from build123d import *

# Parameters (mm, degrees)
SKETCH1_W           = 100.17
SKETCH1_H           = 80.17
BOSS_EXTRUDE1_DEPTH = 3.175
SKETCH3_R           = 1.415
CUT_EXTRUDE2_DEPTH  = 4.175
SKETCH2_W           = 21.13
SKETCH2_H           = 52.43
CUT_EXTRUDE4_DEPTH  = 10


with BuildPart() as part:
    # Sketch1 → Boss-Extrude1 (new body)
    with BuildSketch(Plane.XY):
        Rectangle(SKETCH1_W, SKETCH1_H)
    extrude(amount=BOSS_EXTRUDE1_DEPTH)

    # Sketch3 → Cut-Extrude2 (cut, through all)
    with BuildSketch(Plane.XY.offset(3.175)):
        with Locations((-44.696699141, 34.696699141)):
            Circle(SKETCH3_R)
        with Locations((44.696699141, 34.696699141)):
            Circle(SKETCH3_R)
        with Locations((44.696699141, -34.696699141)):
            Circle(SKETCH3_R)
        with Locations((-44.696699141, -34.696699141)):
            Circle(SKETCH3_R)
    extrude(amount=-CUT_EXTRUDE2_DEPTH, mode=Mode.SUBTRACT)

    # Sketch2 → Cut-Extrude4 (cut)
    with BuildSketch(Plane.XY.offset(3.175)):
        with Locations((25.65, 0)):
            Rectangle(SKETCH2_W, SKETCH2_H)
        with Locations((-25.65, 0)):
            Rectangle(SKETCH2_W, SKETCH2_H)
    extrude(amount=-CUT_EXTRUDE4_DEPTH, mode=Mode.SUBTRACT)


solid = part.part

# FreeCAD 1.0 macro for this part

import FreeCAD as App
import Part
import Sketcher
from FreeCAD import Vector


def add_polygon(sketch, points):
    """Adds a closed chain of lines whose ends are joined by coincident constraints."""
    first, n = sketch.GeometryCount, len(points)
    for a, b in zip(points, points[1:] + points[:1]):
        sketch.addGeometry(Part.LineSegment(App.Vector(*a, 0), App.Vector(*b, 0)), False)
    for i in range(n):
        sketch.addConstraint(Sketcher.Constraint("Coincident", first + i, 2, first + (i + 1) % n, 1))

doc = App.newDocument("Part")
body = doc.addObject("PartDesign::Body", "Body")

# Sketch on XY plane
sketch1 = body.newObject("Sketcher::SketchObject", "Sketch")
sketch1.AttachmentSupport = (doc.getObject("XY_Plane"), [""])
sketch1.MapMode = "FlatFace"
add_polygon(sketch1, [(-50.085, 40.085), (-50.085, -40.085), (50.085, -40.085), (50.085, 40.085)])  # lines 0-3
sketch1.addConstraint([
    Sketcher.Constraint("Vertical", 0),
    Sketcher.Constraint("Horizontal", 1),
    Sketcher.Constraint("Vertical", 2),
    Sketcher.Constraint("Horizontal", 3),
    Sketcher.Constraint("Symmetric", 0, 2, 2, 2, -1, 1),
    Sketcher.Constraint("DistanceX", 1, 1, 1, 2, 100.17),
    Sketcher.Constraint("DistanceY", 0, 2, 0, 1, 80.17),
])
pad1 = body.newObject("PartDesign::Pad", "Pad")
pad1.Profile = sketch1
pad1.Length = 3.175

# Sketch on XY plane
sketch2 = body.newObject("Sketcher::SketchObject", "Sketch001")
sketch2.AttachmentSupport = (doc.getObject("XY_Plane"), [""])
sketch2.MapMode = "FlatFace"
sketch2.AttachmentOffset = App.Placement(Vector(0, 0, 3.175), App.Rotation())
sketch2.addGeometry([
    Part.Circle(Vector(-44.696699, 34.696699, 0), Vector(0, 0, 1), 1.415),
    Part.Circle(Vector(44.696699, 34.696699, 0), Vector(0, 0, 1), 1.415),
    Part.Circle(Vector(44.696699, -34.696699, 0), Vector(0, 0, 1), 1.415),
    Part.Circle(Vector(-44.696699, -34.696699, 0), Vector(0, 0, 1), 1.415),
], False)
sketch2.addConstraint([
    Sketcher.Constraint("Equal", 0, 1),
    Sketcher.Constraint("Equal", 1, 2),
    Sketcher.Constraint("Equal", 2, 3),
    Sketcher.Constraint("Symmetric", 0, 3, 2, 3, -1, 1),
    Sketcher.Constraint("Symmetric", 1, 3, 3, 3, -1, 1),
    Sketcher.Constraint("Symmetric", 0, 3, 1, 3, -2),
    Sketcher.Constraint("Diameter", 0, 2.83),
    Sketcher.Constraint("DistanceX", 0, 3, -1, 1, 44.696699),
    Sketcher.Constraint("DistanceY", -1, 1, 0, 3, 34.696699),
])
pocket1 = body.newObject("PartDesign::Pocket", "Pocket")
pocket1.Profile = sketch2
pocket1.Type = "ThroughAll"

# Sketch on XY plane
sketch3 = body.newObject("Sketcher::SketchObject", "Sketch002")
sketch3.AttachmentSupport = (doc.getObject("XY_Plane"), [""])
sketch3.MapMode = "FlatFace"
sketch3.AttachmentOffset = App.Placement(Vector(0, 0, 3.175), App.Rotation())
add_polygon(sketch3, [(15.085, 26.215), (15.085, -26.215), (36.215, -26.215), (36.215, 26.215)])  # lines 0-3
add_polygon(sketch3, [(-36.215, 26.215), (-36.215, -26.215), (-15.085, -26.215), (-15.085, 26.215)])  # lines 4-7
sketch3.addConstraint([
    Sketcher.Constraint("Vertical", 0),
    Sketcher.Constraint("Horizontal", 1),
    Sketcher.Constraint("Vertical", 2),
    Sketcher.Constraint("Horizontal", 3),
    Sketcher.Constraint("Vertical", 4),
    Sketcher.Constraint("Horizontal", 5),
    Sketcher.Constraint("Vertical", 6),
    Sketcher.Constraint("Horizontal", 7),
    Sketcher.Constraint("Symmetric", 2, 2, 4, 2, -1, 1),
    Sketcher.Constraint("Symmetric", 0, 2, 6, 2, -1, 1),
    Sketcher.Constraint("Horizontal", 1, 2, 4, 2),
    Sketcher.Constraint("DistanceX", 1, 1, 1, 2, 21.13),
    Sketcher.Constraint("DistanceY", 0, 2, 0, 1, 52.43),
    Sketcher.Constraint("DistanceX", 4, 2, 0, 2, 51.3),
])
pocket2 = body.newObject("PartDesign::Pocket", "Pocket001")
pocket2.Profile = sketch3
pocket2.Length = 10

doc.recompute()
